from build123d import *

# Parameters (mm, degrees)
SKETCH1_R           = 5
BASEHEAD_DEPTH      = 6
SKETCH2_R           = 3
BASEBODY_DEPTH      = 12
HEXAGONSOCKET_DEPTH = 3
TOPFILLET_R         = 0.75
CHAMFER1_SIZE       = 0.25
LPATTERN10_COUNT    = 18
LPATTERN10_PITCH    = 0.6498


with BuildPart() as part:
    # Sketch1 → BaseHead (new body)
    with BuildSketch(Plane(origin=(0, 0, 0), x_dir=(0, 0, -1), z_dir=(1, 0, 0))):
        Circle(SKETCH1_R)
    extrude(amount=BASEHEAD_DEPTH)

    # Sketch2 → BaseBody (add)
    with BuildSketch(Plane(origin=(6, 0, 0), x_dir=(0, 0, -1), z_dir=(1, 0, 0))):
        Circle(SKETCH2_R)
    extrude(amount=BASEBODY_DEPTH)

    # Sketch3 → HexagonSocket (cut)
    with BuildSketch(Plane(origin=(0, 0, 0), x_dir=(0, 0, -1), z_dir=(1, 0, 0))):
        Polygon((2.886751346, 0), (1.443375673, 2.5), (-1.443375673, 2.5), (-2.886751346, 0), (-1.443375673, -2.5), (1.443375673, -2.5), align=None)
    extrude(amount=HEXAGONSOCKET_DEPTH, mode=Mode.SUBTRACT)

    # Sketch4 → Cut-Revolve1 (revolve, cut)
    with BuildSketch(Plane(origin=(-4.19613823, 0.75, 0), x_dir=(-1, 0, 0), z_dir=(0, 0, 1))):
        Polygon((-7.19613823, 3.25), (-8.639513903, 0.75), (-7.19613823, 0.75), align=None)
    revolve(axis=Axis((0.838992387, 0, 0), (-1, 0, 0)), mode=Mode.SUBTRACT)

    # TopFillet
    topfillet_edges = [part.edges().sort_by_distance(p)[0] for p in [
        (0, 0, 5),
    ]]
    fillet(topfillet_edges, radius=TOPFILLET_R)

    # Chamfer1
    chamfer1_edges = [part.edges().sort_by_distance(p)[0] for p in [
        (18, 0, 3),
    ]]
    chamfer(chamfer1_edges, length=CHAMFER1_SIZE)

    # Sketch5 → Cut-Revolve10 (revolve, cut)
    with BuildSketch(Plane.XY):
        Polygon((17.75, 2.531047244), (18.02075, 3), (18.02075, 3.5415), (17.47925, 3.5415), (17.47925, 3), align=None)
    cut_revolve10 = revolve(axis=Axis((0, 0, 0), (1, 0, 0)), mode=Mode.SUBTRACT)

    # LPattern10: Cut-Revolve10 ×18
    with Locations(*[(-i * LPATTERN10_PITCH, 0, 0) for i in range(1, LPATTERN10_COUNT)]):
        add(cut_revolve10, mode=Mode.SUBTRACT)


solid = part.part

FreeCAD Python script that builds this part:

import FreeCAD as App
import Part
import Sketcher
from FreeCAD import Vector
Q = App.Units.Quantity


def edges_at(feature, points):
    """Names of the edges that pass closest to the given points."""
    edges = feature.Shape.Edges
    near = lambda p: min(range(len(edges)), key=lambda i: edges[i].distToShape(Part.Vertex(*p))[0])
    return sorted({f"Edge{near(p) + 1}" for p in points})

doc = App.newDocument("Part")
body = doc.addObject("PartDesign::Body", "Body")

sketch1 = doc.addObject("Sketcher::SketchObject", "Sketch")
body.addObject(sketch1)
sketch1.AttachmentSupport = (doc.YZ_Plane, [""])
sketch1.MapMode = "FlatFace"
sketch1.addGeometry(Part.Circle(Vector(0, 0, 0), Vector(0, 0, 1), 5), False)
sketch1.addConstraint([
    Sketcher.Constraint("Coincident", 0, 3, -1, 1),
    Sketcher.Constraint("Diameter", 0, 10.0),
])
pad1 = doc.addObject("PartDesign::Pad", "Pad")
body.addObject(pad1)
pad1.Profile = sketch1
pad1.Length = 6

sketch2 = doc.addObject("Sketcher::SketchObject", "Sketch001")
body.addObject(sketch2)
sketch2.AttachmentSupport = (doc.YZ_Plane, [""])
sketch2.MapMode = "FlatFace"
sketch2.AttachmentOffset = App.Placement(Vector(0, 0, 6), App.Rotation())
sketch2.addGeometry(Part.Circle(Vector(0, 0, 0), Vector(0, 0, 1), 3), False)
sketch2.addConstraint([
    Sketcher.Constraint("Coincident", 0, 3, -1, 1),
    Sketcher.Constraint("Diameter", 0, 6.0),
])
pad2 = doc.addObject("PartDesign::Pad", "Pad001")
body.addObject(pad2)
pad2.Profile = sketch2
pad2.Length = 12

sketch3 = doc.addObject("Sketcher::SketchObject", "Sketch002")
body.addObject(sketch3)
sketch3.AttachmentSupport = (doc.YZ_Plane, [""])
sketch3.MapMode = "FlatFace"
sketch3.addGeometry([
    Part.LineSegment(Vector(0, -2.886751, 0), Vector(2.5, -1.443376, 0)),
    Part.LineSegment(Vector(2.5, -1.443376, 0), Vector(2.5, 1.443376, 0)),
    Part.LineSegment(Vector(2.5, 1.443376, 0), Vector(0, 2.886751, 0)),
    Part.LineSegment(Vector(0, 2.886751, 0), Vector(-2.5, 1.443376, 0)),
    Part.LineSegment(Vector(-2.5, 1.443376, 0), Vector(-2.5, -1.443376, 0)),
    Part.LineSegment(Vector(-2.5, -1.443376, 0), Vector(0, -2.886751, 0)),
], False)
sketch3.addConstraint([
    Sketcher.Constraint("Coincident", 0, 2, 1, 1),
    Sketcher.Constraint("Coincident", 1, 2, 2, 1),
    Sketcher.Constraint("Coincident", 2, 2, 3, 1),
    Sketcher.Constraint("Coincident", 3, 2, 4, 1),
    Sketcher.Constraint("Coincident", 4, 2, 5, 1),
    Sketcher.Constraint("Coincident", 5, 2, 0, 1),
    Sketcher.Constraint("Vertical", 1),
    Sketcher.Constraint("Vertical", 4),
    Sketcher.Constraint("Symmetric", 0, 2, 3, 2, -1, 1),
    Sketcher.Constraint("Symmetric", 2, 2, 5, 2, -1, 1),
    Sketcher.Constraint("PointOnObject", 2, 2, -2),
    Sketcher.Constraint("Parallel", 2, 5),
    Sketcher.Constraint("Horizontal", 1, 2, 3, 2),
    Sketcher.Constraint("Angle", 0, Q("30 deg")),
    Sketcher.Constraint("DistanceX", 3, 2, 1, 2, 5.0),
    Sketcher.Constraint("DistanceY", 1, 1, 1, 2, 2.886751),
])
pocket1 = doc.addObject("PartDesign::Pocket", "Pocket")
body.addObject(pocket1)
pocket1.Profile = sketch3
pocket1.Length = 3
pocket1.Reversed = True

sketch4 = doc.addObject("Sketcher::SketchObject", "Sketch003")
body.addObject(sketch4)
sketch4.AttachmentSupport = (doc.XY_Plane, [""])
sketch4.MapMode = "FlatFace"
sketch4.addGeometry([
    Part.LineSegment(Vector(3, -2.5, 0), Vector(4.443376, 0, 0)),
    Part.LineSegment(Vector(4.443376, 0, 0), Vector(3, 0, 0)),
    Part.LineSegment(Vector(3, 0, 0), Vector(3, -2.5, 0)),
], False)
sketch4.addConstraint([
    Sketcher.Constraint("Coincident", 0, 2, 1, 1),
    Sketcher.Constraint("Coincident", 1, 2, 2, 1),
    Sketcher.Constraint("Coincident", 2, 2, 0, 1),
    Sketcher.Constraint("Horizontal", 1),
    Sketcher.Constraint("Vertical", 2),
    Sketcher.Constraint("PointOnObject", 0, 2, -1),
    Sketcher.Constraint("Angle", 0, Q("60 deg")),
    Sketcher.Constraint("DistanceY", 2, 2, 2, 1, 2.5),
    Sketcher.Constraint("DistanceX", -1, 1, 1, 2, 3.0),
])
groove = doc.addObject("PartDesign::Groove", "Groove")
body.addObject(groove)
groove.Profile = sketch4
groove.ReferenceAxis = (sketch4, ["H_Axis"])
groove.Angle = 360
doc.recompute()

fillet = doc.addObject("PartDesign::Fillet", "Fillet")
body.addObject(fillet)
fillet.Base = (groove, edges_at(groove, [(0, 0, 5)]))
fillet.Radius = 0.75
doc.recompute()

chamfer = doc.addObject("PartDesign::Chamfer", "Chamfer")
body.addObject(chamfer)
chamfer.Base = (fillet, edges_at(fillet, [(18, 0, 3)]))
chamfer.Size = 0.25

sketch5 = doc.addObject("Sketcher::SketchObject", "Sketch004")
body.addObject(sketch5)
sketch5.AttachmentSupport = (doc.XY_Plane, [""])
sketch5.MapMode = "FlatFace"
sketch5.addGeometry([
    Part.LineSegment(Vector(17.75, 2.531047, 0), Vector(18.02075, 3, 0)),
    Part.LineSegment(Vector(18.02075, 3, 0), Vector(18.02075, 3.5415, 0)),
    Part.LineSegment(Vector(18.02075, 3.5415, 0), Vector(17.47925, 3.5415, 0)),
    Part.LineSegment(Vector(17.47925, 3.5415, 0), Vector(17.47925, 3, 0)),
    Part.LineSegment(Vector(17.47925, 3, 0), Vector(17.75, 2.531047, 0)),
], False)
sketch5.addConstraint([
    Sketcher.Constraint("Coincident", 0, 2, 1, 1),
    Sketcher.Constraint("Coincident", 1, 2, 2, 1),
    Sketcher.Constraint("Coincident", 2, 2, 3, 1),
    Sketcher.Constraint("Coincident", 3, 2, 4, 1),
    Sketcher.Constraint("Coincident", 4, 2, 0, 1),
    Sketcher.Constraint("Vertical", 1),
    Sketcher.Constraint("Horizontal", 2),
    Sketcher.Constraint("Vertical", 3),
    Sketcher.Constraint("Horizontal", 0, 2, 3, 2),
    Sketcher.Constraint("Equal", 2, 1),
    Sketcher.Constraint("Equal", 0, 4),
    Sketcher.Constraint("Angle", 0, Q("60 deg")),
    Sketcher.Constraint("DistanceY", -1, 1, 0, 2, 3.0),
    Sketcher.Constraint("DistanceX", -1, 1, 4, 2, 17.75),
    Sketcher.Constraint("DistanceX", 2, 2, 2, 1, 0.5415),
])
groove2 = doc.addObject("PartDesign::Groove", "Groove001")
body.addObject(groove2)
groove2.Profile = sketch5
groove2.ReferenceAxis = (sketch5, ["H_Axis"])
groove2.Angle = 360
doc.recompute()

linearpattern = doc.addObject("PartDesign::LinearPattern", "LinearPattern")
body.addObject(linearpattern)
linearpattern.Originals = [groove2]
linearpattern.Direction = (doc.X_Axis, [""])
linearpattern.Mode = "offset"
linearpattern.Offset = 0.6498
linearpattern.Occurrences = 18
linearpattern.Reversed = True
body.Tip = linearpattern

doc.recompute()
